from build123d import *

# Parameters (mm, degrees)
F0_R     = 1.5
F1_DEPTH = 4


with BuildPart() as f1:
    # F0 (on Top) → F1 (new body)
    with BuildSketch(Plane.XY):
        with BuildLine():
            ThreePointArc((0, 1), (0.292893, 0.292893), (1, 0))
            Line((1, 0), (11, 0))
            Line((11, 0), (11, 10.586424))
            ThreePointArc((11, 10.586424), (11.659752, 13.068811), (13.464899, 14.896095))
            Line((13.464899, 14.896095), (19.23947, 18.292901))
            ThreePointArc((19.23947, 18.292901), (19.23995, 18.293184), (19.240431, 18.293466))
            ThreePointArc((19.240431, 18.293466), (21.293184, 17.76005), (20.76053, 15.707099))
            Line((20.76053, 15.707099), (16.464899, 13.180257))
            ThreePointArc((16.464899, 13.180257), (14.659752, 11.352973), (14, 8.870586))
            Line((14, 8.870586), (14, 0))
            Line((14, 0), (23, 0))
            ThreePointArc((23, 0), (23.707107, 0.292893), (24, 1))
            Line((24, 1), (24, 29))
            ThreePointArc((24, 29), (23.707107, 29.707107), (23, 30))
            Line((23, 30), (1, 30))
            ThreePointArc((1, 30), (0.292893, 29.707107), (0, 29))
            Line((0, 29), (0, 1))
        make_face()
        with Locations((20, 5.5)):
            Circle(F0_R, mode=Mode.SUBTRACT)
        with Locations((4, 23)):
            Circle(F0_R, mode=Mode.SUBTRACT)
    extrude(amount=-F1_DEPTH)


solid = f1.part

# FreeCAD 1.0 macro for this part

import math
import FreeCAD as App
import Part
import Sketcher
from FreeCAD import Vector
Q = App.Units.Quantity

doc = App.newDocument("Part")
body = doc.addObject("PartDesign::Body", "Body")

# Sketch on XY plane
sketch1 = body.newObject("Sketcher::SketchObject", "Sketch")
sketch1.AttachmentSupport = (doc.getObject("XY_Plane"), [""])
sketch1.MapMode = "FlatFace"
sketch1.addGeometry([
    Part.ArcOfCircle(Part.Circle(Vector(1, 1, 0), Vector(0, 0, 1), 1), math.radians(180), math.radians(270)),  # 0
    Part.LineSegment(Vector(1, 0, 0), Vector(11, 0, 0)),  # 1
    Part.LineSegment(Vector(11, 0, 0), Vector(11, 10.5864, 0)),  # 2
    Part.ArcOfCircle(Part.Circle(Vector(16, 10.5864, 0), Vector(0, 0, 1), 5), math.radians(120), math.radians(180)),  # 3
    Part.LineSegment(Vector(13.4649, 14.8961, 0), Vector(19.2395, 18.2929, 0)),  # 4
    Part.ArcOfCircle(Part.Circle(Vector(19.355, 18.0975, 0), Vector(0, 0, 1), 0.227), math.radians(120.31), math.radians(120.59)),  # 5
    Part.ArcOfCircle(Part.Circle(Vector(20, 17, 0), Vector(0, 0, 1), 1.5), math.radians(-60), math.radians(120)),  # 6
    Part.LineSegment(Vector(20.7605, 15.7071, 0), Vector(16.4649, 13.1803, 0)),  # 7
    Part.ArcOfCircle(Part.Circle(Vector(19, 8.8706, 0), Vector(0, 0, 1), 5), math.radians(120), math.radians(180)),  # 8
    Part.LineSegment(Vector(14, 8.8706, 0), Vector(14, 0, 0)),  # 9
    Part.LineSegment(Vector(14, 0, 0), Vector(23, 0, 0)),  # 10
    Part.ArcOfCircle(Part.Circle(Vector(23, 1, 0), Vector(0, 0, 1), 1), math.radians(-90), math.radians(0)),  # 11
    Part.LineSegment(Vector(24, 1, 0), Vector(24, 29, 0)),  # 12
    Part.ArcOfCircle(Part.Circle(Vector(23, 29, 0), Vector(0, 0, 1), 1), math.radians(0), math.radians(90)),  # 13
    Part.LineSegment(Vector(23, 30, 0), Vector(1, 30, 0)),  # 14
    Part.ArcOfCircle(Part.Circle(Vector(1, 29, 0), Vector(0, 0, 1), 1), math.radians(90), math.radians(180)),  # 15
    Part.LineSegment(Vector(0, 29, 0), Vector(0, 1, 0)),  # 16
    Part.Circle(Vector(20, 5.5, 0), Vector(0, 0, 1), 1.5),  # 17
    Part.Circle(Vector(4, 23, 0), Vector(0, 0, 1), 1.5),  # 18
], False)
sketch1.addConstraint([
    Sketcher.Constraint("Tangent", 0, 2, 1, 1),
    Sketcher.Constraint("Coincident", 1, 2, 2, 1),
    Sketcher.Constraint("Tangent", 2, 2, 3, 2),
    Sketcher.Constraint("Tangent", 3, 1, 4, 1),
    Sketcher.Constraint("Coincident", 4, 2, 5, 2),
    Sketcher.Constraint("Coincident", 5, 1, 6, 2),
    Sketcher.Constraint("Tangent", 6, 1, 7, 1),
    Sketcher.Constraint("Tangent", 7, 2, 8, 1),
    Sketcher.Constraint("Tangent", 8, 2, 9, 1),
    Sketcher.Constraint("Coincident", 9, 2, 10, 1),
    Sketcher.Constraint("Tangent", 10, 2, 11, 1),
    Sketcher.Constraint("Tangent", 11, 2, 12, 1),
    Sketcher.Constraint("Tangent", 12, 2, 13, 1),
    Sketcher.Constraint("Tangent", 13, 2, 14, 1),
    Sketcher.Constraint("Tangent", 14, 2, 15, 1),
    Sketcher.Constraint("Tangent", 15, 2, 16, 1),
    Sketcher.Constraint("Tangent", 16, 2, 0, 1),
    Sketcher.Constraint("Horizontal", 1),
    Sketcher.Constraint("Vertical", 2),
    Sketcher.Constraint("Vertical", 9),
    Sketcher.Constraint("Horizontal", 10),
    Sketcher.Constraint("Vertical", 12),
    Sketcher.Constraint("Horizontal", 14),
    Sketcher.Constraint("Vertical", 16),
    Sketcher.Constraint("Equal", 3, 8),
    Sketcher.Constraint("Equal", 0, 11),
    Sketcher.Constraint("Equal", 11, 13),
    Sketcher.Constraint("Equal", 13, 15),
    Sketcher.Constraint("Equal", 6, 17),
    Sketcher.Constraint("Equal", 17, 18),
    Sketcher.Constraint("PointOnObject", 0, 2, -1),
    Sketcher.Constraint("PointOnObject", 9, 2, -1),
    Sketcher.Constraint("PointOnObject", 15, 2, -2),
    Sketcher.Constraint("Parallel", 4, 7),
    Sketcher.Constraint("Vertical", 6, 3, 17, 3),
    Sketcher.Constraint("Diameter", 17, Q("3 mm")),
    Sketcher.Constraint("Radius", 0, Q("0.999999 mm")),
    Sketcher.Constraint("Radius", 3, Q("5.000002 mm")),
    Sketcher.Constraint("DistanceX", 1, 1, 1, 2, Q("10 mm")),
    Sketcher.Constraint("DistanceX", 10, 1, 10, 2, Q("9 mm")),
    Sketcher.Constraint("DistanceX", 14, 2, 14, 1, Q("22 mm")),
    Sketcher.Constraint("DistanceY", 12, 1, 12, 2, Q("28 mm")),
    Sketcher.Constraint("DistanceX", -1, 1, 6, 3, Q("20 mm")),
    Sketcher.Constraint("DistanceY", -1, 1, 6, 3, Q("17 mm")),
    Sketcher.Constraint("DistanceX", -1, 1, 18, 3, Q("4 mm")),
    Sketcher.Constraint("DistanceY", -1, 1, 18, 3, Q("23 mm")),
    Sketcher.Constraint("DistanceY", -1, 1, 17, 3, Q("5.5 mm")),
    Sketcher.Constraint("Radius", 5, Q("0.226965 mm")),
    Sketcher.Constraint("DistanceX", -1, 1, 3, 1, Q("13.464899 mm")),
    Sketcher.Constraint("DistanceY", -1, 1, 4, 2, Q("18.292901 mm")),
    Sketcher.Constraint("DistanceX", 5, 1, 6, 1, Q("1.520099 mm")),
    Sketcher.Constraint("DistanceX", -1, 1, 5, 3, Q("19.354982 mm")),
])
pad1 = body.newObject("PartDesign::Pad", "Pad")
pad1.Profile = sketch1
pad1.Length = 4
pad1.Reversed = True

doc.recompute()
